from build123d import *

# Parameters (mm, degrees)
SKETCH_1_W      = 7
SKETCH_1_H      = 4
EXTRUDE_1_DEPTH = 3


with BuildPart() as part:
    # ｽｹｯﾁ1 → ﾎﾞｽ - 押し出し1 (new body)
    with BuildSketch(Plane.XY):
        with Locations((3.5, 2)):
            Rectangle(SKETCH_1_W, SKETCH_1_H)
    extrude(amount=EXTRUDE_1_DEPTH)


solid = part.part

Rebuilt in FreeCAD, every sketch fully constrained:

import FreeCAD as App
import Part
import Sketcher

V = App.Vector

doc = App.newDocument("Part")
params = doc.addObject("Spreadsheet::Sheet", "Params")
for row, (alias, value) in enumerate([
    ("sketch1_width", "7 mm"),
    ("sketch1_height", "4 mm"),
    ("pad1_length", "3 mm"),
], start=1):
    params.set(f"A{row}", alias)
    params.set(f"B{row}", "=" + value)
    params.setAlias(f"B{row}", alias)

body = doc.addObject("PartDesign::Body", "Body")

# Sketch on XY plane
sketch1 = body.newObject("Sketcher::SketchObject", "Sketch")
sketch1.AttachmentSupport = (doc.getObject("XY_Plane"), [""])
sketch1.MapMode = "FlatFace"
sketch1.addGeometry([
    Part.LineSegment(V(0, 4, 0), V(0, 0, 0)),
    Part.LineSegment(V(0, 0, 0), V(7, 0, 0)),
    Part.LineSegment(V(7, 0, 0), V(7, 4, 0)),
    Part.LineSegment(V(7, 4, 0), V(0, 4, 0)),
], False)
sketch1.addConstraint([
    Sketcher.Constraint("Coincident", 0, 2, 1, 1),
    Sketcher.Constraint("Coincident", 1, 2, 2, 1),
    Sketcher.Constraint("Coincident", 2, 2, 3, 1),
    Sketcher.Constraint("Coincident", 3, 2, 0, 1),
    Sketcher.Constraint("Vertical", 0),
    Sketcher.Constraint("Horizontal", 1),
    Sketcher.Constraint("Vertical", 2),
    Sketcher.Constraint("Horizontal", 3),
    Sketcher.Constraint("Coincident", 0, 2, -1, 1),
    Sketcher.Constraint("DistanceX", 1, 1, 1, 2, 7.0),
    Sketcher.Constraint("DistanceY", 0, 2, 0, 1, 4.0),
])
sketch1.setExpression("Constraints[9]", "Params.sketch1_width")
sketch1.setExpression("Constraints[10]", "Params.sketch1_height")
pad1 = body.newObject("PartDesign::Pad", "Pad")
pad1.Profile = sketch1
pad1.setExpression("Length", "Params.pad1_length")

doc.recompute()
